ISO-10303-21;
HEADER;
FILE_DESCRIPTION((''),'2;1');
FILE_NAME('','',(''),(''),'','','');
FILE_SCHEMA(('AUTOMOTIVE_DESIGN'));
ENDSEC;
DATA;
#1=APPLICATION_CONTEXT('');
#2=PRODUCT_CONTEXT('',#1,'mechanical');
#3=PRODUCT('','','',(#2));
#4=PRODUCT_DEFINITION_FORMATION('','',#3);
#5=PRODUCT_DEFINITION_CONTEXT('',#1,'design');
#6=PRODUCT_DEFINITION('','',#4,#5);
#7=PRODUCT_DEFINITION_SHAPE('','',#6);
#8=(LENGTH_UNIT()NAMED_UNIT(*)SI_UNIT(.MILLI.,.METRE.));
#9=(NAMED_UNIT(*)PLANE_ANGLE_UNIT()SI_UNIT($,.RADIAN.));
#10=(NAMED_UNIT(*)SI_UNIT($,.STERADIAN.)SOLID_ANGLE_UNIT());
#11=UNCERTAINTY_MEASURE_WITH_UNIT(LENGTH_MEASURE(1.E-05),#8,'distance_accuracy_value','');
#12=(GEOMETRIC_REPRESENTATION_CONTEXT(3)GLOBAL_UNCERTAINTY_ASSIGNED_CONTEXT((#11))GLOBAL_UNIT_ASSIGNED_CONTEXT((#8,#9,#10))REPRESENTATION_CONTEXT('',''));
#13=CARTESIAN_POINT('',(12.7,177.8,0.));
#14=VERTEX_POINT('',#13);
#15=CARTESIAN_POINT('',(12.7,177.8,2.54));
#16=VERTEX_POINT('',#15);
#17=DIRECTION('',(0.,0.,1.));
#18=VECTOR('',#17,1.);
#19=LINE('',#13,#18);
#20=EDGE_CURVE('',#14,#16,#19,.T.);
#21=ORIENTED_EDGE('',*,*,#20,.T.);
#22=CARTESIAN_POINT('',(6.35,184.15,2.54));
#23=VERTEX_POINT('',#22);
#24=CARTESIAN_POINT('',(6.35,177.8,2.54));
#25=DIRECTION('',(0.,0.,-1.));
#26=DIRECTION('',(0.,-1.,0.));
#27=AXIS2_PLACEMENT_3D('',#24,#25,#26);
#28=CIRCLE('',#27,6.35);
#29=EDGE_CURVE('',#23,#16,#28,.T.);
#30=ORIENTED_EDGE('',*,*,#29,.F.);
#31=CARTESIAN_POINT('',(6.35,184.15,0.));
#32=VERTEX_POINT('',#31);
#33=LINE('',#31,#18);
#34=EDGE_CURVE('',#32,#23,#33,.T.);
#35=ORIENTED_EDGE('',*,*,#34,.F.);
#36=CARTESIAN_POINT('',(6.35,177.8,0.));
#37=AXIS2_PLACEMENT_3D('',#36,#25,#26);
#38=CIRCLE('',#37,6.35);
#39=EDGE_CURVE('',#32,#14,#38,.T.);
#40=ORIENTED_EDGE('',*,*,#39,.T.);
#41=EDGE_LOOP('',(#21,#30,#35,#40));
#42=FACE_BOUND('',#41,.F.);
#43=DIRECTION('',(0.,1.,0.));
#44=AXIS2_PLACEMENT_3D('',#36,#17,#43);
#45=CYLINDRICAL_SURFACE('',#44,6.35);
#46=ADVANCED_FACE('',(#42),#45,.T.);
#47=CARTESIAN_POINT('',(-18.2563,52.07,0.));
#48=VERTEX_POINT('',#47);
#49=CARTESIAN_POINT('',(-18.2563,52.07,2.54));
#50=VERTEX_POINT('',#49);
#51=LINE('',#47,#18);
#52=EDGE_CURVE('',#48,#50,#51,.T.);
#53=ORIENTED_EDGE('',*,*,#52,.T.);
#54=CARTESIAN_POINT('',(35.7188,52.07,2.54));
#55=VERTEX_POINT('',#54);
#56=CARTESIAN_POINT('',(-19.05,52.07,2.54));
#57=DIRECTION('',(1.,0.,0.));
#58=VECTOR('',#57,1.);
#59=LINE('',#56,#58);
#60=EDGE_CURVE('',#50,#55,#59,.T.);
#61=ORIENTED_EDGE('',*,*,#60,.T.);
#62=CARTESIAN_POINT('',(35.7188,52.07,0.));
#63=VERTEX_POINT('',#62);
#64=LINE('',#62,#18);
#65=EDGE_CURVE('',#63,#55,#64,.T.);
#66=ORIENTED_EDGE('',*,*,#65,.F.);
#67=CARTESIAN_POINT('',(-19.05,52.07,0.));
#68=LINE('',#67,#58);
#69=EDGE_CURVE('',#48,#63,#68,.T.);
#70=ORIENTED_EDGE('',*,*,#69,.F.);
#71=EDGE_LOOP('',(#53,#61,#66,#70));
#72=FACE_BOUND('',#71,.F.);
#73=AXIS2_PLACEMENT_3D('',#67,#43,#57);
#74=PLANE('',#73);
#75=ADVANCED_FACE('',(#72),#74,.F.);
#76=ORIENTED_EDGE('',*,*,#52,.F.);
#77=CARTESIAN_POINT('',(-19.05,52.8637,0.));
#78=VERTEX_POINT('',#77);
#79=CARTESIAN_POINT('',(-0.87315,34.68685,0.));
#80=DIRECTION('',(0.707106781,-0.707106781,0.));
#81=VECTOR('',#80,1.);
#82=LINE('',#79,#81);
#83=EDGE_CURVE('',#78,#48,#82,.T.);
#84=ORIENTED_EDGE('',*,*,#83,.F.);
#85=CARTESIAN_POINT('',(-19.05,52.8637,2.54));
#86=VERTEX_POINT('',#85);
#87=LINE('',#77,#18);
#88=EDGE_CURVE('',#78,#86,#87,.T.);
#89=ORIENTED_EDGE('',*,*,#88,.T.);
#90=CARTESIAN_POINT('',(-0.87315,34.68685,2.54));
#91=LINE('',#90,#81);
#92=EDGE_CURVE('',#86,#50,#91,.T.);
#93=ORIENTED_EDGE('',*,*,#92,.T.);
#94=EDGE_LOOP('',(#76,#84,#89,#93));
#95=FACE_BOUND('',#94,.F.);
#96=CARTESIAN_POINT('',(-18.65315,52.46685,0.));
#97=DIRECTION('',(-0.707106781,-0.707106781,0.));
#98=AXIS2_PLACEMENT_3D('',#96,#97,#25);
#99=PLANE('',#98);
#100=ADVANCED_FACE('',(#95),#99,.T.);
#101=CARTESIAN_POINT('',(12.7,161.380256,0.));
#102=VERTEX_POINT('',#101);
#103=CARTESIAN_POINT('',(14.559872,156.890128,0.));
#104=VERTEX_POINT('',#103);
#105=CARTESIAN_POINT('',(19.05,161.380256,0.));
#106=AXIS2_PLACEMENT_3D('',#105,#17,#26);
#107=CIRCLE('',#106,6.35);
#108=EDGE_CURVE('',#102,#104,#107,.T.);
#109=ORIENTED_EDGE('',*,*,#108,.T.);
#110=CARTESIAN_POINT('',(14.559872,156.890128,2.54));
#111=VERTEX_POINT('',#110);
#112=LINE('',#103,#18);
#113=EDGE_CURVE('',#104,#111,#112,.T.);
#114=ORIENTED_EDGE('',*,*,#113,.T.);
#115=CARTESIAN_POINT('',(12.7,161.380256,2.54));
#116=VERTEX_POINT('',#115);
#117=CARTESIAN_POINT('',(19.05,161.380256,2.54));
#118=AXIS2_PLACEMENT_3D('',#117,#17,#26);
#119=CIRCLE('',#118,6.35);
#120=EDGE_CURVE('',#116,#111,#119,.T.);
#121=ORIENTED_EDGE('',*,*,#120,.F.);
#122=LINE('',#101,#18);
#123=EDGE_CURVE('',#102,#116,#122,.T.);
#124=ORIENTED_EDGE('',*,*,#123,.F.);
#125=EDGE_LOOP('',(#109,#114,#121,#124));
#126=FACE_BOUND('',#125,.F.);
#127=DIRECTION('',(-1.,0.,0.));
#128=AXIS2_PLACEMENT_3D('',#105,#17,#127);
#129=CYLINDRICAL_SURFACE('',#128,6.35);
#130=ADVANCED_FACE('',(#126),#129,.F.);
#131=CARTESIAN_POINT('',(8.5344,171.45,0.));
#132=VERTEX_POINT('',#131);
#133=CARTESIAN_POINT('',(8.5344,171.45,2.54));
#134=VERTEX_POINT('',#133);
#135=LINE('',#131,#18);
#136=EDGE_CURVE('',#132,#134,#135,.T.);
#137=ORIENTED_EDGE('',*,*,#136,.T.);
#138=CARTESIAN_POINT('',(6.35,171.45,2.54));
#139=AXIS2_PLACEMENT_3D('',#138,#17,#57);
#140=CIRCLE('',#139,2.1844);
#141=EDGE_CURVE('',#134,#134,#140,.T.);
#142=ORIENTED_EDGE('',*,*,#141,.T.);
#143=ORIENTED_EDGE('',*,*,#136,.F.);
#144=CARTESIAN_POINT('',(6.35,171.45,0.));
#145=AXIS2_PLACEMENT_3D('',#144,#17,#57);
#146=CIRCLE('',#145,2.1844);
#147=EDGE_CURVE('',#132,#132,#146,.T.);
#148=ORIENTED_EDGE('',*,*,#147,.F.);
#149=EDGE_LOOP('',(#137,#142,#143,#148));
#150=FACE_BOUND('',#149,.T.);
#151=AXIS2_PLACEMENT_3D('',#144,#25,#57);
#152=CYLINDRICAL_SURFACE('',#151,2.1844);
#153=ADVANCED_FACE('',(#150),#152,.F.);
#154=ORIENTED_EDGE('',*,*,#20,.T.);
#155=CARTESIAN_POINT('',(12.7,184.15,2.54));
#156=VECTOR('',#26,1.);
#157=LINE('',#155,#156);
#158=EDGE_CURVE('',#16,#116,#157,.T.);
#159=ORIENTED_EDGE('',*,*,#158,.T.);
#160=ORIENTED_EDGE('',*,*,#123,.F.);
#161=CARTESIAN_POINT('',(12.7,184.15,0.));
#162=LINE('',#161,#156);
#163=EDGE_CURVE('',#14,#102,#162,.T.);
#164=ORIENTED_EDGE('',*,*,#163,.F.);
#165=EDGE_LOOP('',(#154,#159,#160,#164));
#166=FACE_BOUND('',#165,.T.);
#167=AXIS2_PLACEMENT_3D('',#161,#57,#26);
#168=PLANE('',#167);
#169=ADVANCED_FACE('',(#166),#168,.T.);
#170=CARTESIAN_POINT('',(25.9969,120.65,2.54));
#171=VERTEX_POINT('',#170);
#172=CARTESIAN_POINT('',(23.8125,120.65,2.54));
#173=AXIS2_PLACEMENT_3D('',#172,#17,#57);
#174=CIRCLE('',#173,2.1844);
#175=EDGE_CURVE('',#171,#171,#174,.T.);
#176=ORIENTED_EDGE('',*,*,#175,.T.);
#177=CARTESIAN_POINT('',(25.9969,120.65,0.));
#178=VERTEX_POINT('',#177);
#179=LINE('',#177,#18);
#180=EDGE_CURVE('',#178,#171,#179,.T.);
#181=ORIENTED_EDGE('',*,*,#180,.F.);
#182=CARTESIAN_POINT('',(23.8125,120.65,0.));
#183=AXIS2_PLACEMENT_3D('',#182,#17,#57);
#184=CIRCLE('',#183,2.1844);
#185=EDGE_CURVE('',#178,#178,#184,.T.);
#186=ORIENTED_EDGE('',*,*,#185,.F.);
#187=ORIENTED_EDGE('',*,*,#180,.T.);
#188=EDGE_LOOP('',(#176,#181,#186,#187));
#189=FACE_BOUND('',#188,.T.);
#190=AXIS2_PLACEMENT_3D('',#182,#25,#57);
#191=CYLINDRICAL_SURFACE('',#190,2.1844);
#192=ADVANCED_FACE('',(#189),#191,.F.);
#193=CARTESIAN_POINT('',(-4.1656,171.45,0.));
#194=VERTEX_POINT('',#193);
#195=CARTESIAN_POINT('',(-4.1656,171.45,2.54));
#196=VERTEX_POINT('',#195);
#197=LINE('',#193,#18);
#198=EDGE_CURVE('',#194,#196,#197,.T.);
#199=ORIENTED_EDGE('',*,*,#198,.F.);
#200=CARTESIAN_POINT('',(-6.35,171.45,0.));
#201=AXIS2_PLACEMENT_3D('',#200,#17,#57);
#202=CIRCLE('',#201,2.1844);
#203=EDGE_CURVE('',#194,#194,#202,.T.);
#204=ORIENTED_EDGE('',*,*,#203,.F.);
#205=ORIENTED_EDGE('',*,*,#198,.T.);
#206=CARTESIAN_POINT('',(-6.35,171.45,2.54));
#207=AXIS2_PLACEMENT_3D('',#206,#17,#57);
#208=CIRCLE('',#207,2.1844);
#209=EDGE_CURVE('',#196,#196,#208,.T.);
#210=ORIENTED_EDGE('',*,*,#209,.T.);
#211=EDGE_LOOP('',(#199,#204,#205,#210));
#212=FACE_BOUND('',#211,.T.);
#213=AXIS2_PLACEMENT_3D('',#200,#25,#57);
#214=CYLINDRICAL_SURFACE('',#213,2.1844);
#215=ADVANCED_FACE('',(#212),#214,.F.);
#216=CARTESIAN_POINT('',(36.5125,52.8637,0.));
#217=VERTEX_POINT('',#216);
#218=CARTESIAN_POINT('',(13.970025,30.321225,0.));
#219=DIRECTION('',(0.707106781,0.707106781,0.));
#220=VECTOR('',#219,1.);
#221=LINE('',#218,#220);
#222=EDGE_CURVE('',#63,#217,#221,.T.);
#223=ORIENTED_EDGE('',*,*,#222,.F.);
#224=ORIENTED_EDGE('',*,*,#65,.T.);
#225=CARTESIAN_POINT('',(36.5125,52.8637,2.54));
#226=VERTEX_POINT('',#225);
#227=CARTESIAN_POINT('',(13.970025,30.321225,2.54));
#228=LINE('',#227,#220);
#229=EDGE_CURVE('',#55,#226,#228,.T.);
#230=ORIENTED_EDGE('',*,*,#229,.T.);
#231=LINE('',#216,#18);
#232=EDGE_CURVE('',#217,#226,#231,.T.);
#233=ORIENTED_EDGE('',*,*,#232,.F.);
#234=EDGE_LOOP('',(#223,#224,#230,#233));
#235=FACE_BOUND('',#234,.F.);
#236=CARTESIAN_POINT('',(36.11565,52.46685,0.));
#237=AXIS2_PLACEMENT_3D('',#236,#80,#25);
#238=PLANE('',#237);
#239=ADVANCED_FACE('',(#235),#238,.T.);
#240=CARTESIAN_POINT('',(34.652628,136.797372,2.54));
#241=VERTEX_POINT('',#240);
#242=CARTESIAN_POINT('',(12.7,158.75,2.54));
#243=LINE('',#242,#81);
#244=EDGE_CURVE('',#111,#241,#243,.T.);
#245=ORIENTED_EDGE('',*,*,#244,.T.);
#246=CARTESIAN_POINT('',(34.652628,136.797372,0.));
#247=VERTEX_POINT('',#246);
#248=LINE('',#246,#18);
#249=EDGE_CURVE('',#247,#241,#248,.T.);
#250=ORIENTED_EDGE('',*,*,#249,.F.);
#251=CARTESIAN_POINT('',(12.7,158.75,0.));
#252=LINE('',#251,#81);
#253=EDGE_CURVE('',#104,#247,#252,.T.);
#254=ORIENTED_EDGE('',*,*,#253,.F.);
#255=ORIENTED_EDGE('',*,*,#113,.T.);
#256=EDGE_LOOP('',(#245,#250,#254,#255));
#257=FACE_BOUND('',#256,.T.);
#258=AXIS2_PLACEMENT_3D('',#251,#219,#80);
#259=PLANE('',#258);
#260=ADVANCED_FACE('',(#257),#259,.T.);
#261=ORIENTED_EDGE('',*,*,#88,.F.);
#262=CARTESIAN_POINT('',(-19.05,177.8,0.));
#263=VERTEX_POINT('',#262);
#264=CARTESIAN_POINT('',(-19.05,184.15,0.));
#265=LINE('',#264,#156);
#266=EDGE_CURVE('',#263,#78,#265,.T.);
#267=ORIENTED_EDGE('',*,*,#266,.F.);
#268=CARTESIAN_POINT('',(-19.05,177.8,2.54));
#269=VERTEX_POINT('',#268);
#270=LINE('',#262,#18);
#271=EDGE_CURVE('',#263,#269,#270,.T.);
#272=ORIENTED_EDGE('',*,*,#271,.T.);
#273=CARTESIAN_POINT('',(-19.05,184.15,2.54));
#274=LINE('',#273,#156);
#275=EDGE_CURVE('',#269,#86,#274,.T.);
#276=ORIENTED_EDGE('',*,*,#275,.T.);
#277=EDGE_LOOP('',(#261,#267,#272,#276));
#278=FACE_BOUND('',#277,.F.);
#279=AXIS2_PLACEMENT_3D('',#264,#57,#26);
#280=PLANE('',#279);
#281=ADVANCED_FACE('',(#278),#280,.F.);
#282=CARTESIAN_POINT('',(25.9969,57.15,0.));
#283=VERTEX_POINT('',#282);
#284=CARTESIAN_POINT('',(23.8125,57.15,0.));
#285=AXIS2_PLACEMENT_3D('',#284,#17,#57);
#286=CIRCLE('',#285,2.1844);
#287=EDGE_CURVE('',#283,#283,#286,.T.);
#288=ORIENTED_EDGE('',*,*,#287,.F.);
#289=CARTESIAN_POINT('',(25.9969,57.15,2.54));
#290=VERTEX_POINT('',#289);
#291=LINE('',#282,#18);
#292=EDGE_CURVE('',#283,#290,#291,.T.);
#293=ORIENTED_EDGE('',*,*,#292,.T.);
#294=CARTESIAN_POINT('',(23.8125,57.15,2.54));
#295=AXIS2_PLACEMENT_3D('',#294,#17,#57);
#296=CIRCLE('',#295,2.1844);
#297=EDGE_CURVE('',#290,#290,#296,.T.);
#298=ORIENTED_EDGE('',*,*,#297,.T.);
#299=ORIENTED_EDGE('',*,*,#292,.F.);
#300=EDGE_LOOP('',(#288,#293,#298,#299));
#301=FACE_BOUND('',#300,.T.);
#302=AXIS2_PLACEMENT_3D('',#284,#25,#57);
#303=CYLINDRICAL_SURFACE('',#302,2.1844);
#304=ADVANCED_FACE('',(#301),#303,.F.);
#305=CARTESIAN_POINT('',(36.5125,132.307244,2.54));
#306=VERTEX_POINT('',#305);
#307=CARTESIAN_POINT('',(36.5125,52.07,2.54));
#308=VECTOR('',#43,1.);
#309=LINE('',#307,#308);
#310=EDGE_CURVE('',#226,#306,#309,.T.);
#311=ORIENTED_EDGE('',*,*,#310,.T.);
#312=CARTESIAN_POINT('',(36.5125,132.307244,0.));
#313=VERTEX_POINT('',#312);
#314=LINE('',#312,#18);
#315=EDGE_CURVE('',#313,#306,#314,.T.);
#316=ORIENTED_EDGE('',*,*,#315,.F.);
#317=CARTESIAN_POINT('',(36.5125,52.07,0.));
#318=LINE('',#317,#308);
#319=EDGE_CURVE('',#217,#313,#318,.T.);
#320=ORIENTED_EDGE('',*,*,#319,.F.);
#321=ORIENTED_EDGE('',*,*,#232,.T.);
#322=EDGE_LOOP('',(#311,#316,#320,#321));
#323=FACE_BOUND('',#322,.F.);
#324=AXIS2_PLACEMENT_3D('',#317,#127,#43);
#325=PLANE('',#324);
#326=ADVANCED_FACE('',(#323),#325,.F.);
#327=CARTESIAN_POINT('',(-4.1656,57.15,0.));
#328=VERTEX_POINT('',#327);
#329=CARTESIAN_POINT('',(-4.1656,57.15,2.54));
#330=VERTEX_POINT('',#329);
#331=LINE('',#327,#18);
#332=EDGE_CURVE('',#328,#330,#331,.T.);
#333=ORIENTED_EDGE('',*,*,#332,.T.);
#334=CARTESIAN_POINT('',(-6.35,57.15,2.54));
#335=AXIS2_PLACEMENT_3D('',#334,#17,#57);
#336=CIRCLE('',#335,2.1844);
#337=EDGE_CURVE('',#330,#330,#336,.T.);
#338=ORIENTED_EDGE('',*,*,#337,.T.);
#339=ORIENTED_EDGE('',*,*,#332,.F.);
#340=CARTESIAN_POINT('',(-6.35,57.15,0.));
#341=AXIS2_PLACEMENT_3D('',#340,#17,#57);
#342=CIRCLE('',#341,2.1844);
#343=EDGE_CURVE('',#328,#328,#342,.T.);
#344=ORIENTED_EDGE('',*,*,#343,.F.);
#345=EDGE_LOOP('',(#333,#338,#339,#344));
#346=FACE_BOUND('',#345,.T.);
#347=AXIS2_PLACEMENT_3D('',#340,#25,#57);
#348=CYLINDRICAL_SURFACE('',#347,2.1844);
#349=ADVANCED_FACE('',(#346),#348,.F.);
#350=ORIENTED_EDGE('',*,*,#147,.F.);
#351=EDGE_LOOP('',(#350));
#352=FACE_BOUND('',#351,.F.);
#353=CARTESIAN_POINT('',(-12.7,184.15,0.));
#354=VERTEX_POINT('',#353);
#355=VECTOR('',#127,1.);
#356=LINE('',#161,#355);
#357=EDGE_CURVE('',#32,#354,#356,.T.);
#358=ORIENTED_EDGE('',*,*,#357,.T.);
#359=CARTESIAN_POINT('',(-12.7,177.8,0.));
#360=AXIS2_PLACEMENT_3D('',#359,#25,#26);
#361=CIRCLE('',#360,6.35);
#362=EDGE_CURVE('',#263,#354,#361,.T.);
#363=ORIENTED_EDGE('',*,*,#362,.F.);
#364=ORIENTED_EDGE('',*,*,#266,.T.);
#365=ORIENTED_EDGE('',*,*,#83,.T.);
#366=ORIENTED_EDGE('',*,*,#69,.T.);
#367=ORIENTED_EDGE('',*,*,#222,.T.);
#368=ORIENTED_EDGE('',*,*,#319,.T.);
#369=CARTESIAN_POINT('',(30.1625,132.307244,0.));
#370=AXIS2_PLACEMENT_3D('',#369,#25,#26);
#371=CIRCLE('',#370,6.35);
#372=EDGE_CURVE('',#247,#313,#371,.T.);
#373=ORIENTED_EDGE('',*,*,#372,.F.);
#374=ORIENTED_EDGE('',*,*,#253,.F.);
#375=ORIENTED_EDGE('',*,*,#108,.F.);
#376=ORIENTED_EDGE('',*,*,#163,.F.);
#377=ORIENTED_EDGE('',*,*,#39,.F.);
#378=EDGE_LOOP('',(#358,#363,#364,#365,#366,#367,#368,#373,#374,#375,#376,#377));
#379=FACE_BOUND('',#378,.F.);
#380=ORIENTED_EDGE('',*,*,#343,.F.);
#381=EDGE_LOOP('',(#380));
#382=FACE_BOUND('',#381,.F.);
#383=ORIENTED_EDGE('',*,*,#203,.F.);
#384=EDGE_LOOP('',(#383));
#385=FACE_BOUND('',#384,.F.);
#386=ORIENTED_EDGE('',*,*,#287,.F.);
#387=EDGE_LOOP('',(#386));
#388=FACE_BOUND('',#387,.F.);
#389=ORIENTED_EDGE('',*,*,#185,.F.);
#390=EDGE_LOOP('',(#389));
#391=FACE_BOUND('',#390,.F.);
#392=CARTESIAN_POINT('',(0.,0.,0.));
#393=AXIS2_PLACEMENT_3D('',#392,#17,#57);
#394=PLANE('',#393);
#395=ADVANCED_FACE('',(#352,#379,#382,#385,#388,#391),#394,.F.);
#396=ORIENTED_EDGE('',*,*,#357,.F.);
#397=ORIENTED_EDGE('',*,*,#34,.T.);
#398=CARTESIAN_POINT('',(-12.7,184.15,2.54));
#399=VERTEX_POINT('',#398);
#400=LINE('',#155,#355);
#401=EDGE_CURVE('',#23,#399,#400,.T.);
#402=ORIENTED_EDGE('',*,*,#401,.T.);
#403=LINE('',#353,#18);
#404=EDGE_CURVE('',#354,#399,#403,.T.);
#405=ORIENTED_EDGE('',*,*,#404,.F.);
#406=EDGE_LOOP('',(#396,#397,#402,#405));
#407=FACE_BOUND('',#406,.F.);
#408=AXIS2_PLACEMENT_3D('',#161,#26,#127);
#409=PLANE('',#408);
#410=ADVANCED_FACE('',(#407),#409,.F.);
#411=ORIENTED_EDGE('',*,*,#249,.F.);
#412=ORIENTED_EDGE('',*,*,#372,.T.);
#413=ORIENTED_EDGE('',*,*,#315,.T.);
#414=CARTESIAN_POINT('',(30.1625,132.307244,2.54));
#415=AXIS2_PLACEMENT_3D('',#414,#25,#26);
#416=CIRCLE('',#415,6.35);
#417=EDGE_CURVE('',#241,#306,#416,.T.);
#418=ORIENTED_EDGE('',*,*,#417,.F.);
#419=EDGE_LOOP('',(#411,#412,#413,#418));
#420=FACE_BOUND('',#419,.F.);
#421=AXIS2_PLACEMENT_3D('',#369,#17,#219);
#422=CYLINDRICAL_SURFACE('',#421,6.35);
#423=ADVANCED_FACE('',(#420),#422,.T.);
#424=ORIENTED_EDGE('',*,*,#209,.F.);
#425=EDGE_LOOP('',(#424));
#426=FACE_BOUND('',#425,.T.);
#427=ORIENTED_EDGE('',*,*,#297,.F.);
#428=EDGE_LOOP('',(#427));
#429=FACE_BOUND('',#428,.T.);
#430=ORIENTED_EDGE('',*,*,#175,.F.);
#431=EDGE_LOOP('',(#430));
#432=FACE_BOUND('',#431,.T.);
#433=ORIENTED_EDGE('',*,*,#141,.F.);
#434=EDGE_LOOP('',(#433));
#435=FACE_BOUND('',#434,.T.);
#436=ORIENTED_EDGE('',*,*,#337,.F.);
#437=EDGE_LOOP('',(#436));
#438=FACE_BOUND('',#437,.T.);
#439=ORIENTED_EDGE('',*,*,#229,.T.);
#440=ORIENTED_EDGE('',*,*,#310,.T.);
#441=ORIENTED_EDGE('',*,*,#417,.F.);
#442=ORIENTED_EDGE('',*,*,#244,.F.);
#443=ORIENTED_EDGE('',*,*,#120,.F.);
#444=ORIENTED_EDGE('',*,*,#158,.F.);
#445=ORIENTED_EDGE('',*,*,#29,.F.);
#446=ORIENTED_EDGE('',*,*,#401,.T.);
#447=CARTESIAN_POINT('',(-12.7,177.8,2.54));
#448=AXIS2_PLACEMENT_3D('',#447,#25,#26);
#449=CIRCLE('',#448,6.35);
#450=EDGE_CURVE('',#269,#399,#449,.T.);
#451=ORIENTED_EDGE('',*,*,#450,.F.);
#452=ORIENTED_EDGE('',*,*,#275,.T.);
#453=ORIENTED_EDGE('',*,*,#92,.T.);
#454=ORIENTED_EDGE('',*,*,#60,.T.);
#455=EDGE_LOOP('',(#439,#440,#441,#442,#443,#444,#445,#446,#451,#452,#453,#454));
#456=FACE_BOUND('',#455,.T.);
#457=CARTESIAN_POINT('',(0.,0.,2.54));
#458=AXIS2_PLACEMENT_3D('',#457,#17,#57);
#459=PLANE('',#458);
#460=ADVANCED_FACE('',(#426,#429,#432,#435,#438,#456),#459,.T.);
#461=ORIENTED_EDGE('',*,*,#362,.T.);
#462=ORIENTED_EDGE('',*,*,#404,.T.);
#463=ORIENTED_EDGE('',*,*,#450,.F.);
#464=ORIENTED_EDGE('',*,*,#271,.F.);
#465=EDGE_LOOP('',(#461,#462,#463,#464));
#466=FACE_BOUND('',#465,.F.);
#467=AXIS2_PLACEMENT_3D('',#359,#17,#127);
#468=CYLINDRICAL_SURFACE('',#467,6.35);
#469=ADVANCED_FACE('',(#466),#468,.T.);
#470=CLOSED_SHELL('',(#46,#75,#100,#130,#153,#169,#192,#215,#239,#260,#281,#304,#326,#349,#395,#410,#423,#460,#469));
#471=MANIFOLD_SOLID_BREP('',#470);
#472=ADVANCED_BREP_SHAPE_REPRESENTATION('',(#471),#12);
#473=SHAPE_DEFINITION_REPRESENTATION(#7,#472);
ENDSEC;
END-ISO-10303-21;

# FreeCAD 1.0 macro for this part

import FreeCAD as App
import Part
import Sketcher

V = App.Vector
Q = App.Units.Quantity


def edges_at(feature, points):
    """Names of the edges that pass closest to the given points."""
    edges = feature.Shape.Edges
    near = lambda p: min(range(len(edges)), key=lambda i: edges[i].distToShape(Part.Vertex(*p))[0])
    return sorted({f"Edge{near(p) + 1}" for p in points})


def add_polygon(sketch, points):
    """Adds a closed chain of lines whose ends are joined by coincident constraints."""
    first, n = sketch.GeometryCount, len(points)
    for a, b in zip(points, points[1:] + points[:1]):
        sketch.addGeometry(Part.LineSegment(App.Vector(*a, 0), App.Vector(*b, 0)), False)
    for i in range(n):
        sketch.addConstraint(Sketcher.Constraint("Coincident", first + i, 2, first + (i + 1) % n, 1))

doc = App.newDocument("Part")
params = doc.addObject("Spreadsheet::Sheet", "Params")
for row, (alias, value) in enumerate([
    ("sketch1_height", "1 in"),
    ("sketch1_width", "1.25 in"),
    ("sketch1_diameter", "0.172 in"),
    ("sketch1_height2", "5.2 in"),
    ("sketch1_width2", "2.1875 in"),
    ("pad1_length", "0.1 in"),
    ("fillet_radius", "0.25 in"),
    ("chamfer_size", "0.031248 in"),
], start=1):
    params.set(f"A{row}", alias)
    params.set(f"B{row}", "=" + value)
    params.setAlias(f"B{row}", alias)

body = doc.addObject("PartDesign::Body", "Body")

# Sketch on XY plane
sketch1 = body.newObject("Sketcher::SketchObject", "Sketch")
sketch1.AttachmentSupport = (doc.getObject("XY_Plane"), [""])
sketch1.MapMode = "FlatFace"
add_polygon(sketch1, [(-19.1, 184.2), (-19.1, 52.1), (36.5, 52.1), (36.5, 134.9), (12.7, 158.8), (12.7, 184.2)])  # lines 0-5
sketch1.addGeometry(Part.Circle(V(-6.3, 57.1, 0), V(0, 0, 1), 2.2), False)  # 6
sketch1.addGeometry(Part.Circle(V(23.8, 57.1, 0), V(0, 0, 1), 2.2), False)  # 7
sketch1.addGeometry(Part.Circle(V(-6.3, 171.4, 0), V(0, 0, 1), 2.2), False)  # 8
sketch1.addGeometry(Part.Circle(V(6.3, 171.4, 0), V(0, 0, 1), 2.2), False)  # 9
sketch1.addGeometry(Part.Circle(V(23.8, 120.7, 0), V(0, 0, 1), 2.2), False)  # 10
sketch1.addConstraint([
    Sketcher.Constraint("Vertical", 0),
    Sketcher.Constraint("Horizontal", 1),
    Sketcher.Constraint("Vertical", 2),
    Sketcher.Constraint("Vertical", 4),
    Sketcher.Constraint("Horizontal", 5),
    Sketcher.Constraint("Equal", 6, 7),
    Sketcher.Constraint("Equal", 7, 8),
    Sketcher.Constraint("Equal", 8, 9),
    Sketcher.Constraint("Equal", 9, 10),
    Sketcher.Constraint("Symmetric", 8, 3, 9, 3, -2),
    Sketcher.Constraint("Horizontal", 6, 3, 7, 3),
    Sketcher.Constraint("Vertical", 6, 3, 8, 3),
    Sketcher.Constraint("Vertical", 7, 3, 10, 3),
    Sketcher.Constraint("DistanceY", 4, 1, 4, 2, Q("1 in")),
    Sketcher.Constraint("Angle", 3, Q("135 deg")),
    Sketcher.Constraint("DistanceX", 0, 2, 9, 3, Q("1 in")),
    Sketcher.Constraint("DistanceX", 5, 2, 5, 1, Q("1.25 in")),
    Sketcher.Constraint("DistanceX", -1, 1, 3, 2, Q("0.5 in")),
    Sketcher.Constraint("DistanceY", 0, 2, 6, 3, Q("0.2 in")),
    Sketcher.Constraint("DistanceX", 7, 3, 1, 2, Q("0.5 in")),
    Sketcher.Constraint("DistanceY", 3, 2, 9, 3, Q("0.5 in")),
    Sketcher.Constraint("Diameter", 6, Q("0.172 in")),
    Sketcher.Constraint("DistanceY", 0, 2, 0, 1, Q("5.2 in")),
    Sketcher.Constraint("DistanceY", 10, 3, 9, 3, Q("2 in")),
    Sketcher.Constraint("DistanceX", 1, 1, 1, 2, Q("2.1875 in")),
    Sketcher.Constraint("DistanceY", -1, 1, 6, 3, Q("2.25 in")),
])
sketch1.setExpression("Constraints[19]", "Params.sketch1_height")
sketch1.setExpression("Constraints[22]", "Params.sketch1_width")
sketch1.setExpression("Constraints[27]", "Params.sketch1_diameter")
sketch1.setExpression("Constraints[28]", "Params.sketch1_height2")
sketch1.setExpression("Constraints[30]", "Params.sketch1_width2")
pad1 = body.newObject("PartDesign::Pad", "Pad")
pad1.Profile = sketch1
pad1.setExpression("Length", "Params.pad1_length")
doc.recompute()

fillet = body.newObject("PartDesign::Fillet", "Fillet")
fillet.Base = (pad1, edges_at(pad1, [
    (-19.05, 184.15, 1.27),
    (12.7, 184.15, 1.27),
    (12.7, 158.75, 1.27),
    (36.513, 134.938, 1.27),
]))
fillet.setExpression("Radius", "Params.fillet_radius")
doc.recompute()

chamfer = body.newObject("PartDesign::Chamfer", "Chamfer")
chamfer.Base = (fillet, edges_at(fillet, [(36.513, 52.07, 1.27), (-19.05, 52.07, 1.27)]))
chamfer.setExpression("Size", "Params.chamfer_size")

doc.recompute()
